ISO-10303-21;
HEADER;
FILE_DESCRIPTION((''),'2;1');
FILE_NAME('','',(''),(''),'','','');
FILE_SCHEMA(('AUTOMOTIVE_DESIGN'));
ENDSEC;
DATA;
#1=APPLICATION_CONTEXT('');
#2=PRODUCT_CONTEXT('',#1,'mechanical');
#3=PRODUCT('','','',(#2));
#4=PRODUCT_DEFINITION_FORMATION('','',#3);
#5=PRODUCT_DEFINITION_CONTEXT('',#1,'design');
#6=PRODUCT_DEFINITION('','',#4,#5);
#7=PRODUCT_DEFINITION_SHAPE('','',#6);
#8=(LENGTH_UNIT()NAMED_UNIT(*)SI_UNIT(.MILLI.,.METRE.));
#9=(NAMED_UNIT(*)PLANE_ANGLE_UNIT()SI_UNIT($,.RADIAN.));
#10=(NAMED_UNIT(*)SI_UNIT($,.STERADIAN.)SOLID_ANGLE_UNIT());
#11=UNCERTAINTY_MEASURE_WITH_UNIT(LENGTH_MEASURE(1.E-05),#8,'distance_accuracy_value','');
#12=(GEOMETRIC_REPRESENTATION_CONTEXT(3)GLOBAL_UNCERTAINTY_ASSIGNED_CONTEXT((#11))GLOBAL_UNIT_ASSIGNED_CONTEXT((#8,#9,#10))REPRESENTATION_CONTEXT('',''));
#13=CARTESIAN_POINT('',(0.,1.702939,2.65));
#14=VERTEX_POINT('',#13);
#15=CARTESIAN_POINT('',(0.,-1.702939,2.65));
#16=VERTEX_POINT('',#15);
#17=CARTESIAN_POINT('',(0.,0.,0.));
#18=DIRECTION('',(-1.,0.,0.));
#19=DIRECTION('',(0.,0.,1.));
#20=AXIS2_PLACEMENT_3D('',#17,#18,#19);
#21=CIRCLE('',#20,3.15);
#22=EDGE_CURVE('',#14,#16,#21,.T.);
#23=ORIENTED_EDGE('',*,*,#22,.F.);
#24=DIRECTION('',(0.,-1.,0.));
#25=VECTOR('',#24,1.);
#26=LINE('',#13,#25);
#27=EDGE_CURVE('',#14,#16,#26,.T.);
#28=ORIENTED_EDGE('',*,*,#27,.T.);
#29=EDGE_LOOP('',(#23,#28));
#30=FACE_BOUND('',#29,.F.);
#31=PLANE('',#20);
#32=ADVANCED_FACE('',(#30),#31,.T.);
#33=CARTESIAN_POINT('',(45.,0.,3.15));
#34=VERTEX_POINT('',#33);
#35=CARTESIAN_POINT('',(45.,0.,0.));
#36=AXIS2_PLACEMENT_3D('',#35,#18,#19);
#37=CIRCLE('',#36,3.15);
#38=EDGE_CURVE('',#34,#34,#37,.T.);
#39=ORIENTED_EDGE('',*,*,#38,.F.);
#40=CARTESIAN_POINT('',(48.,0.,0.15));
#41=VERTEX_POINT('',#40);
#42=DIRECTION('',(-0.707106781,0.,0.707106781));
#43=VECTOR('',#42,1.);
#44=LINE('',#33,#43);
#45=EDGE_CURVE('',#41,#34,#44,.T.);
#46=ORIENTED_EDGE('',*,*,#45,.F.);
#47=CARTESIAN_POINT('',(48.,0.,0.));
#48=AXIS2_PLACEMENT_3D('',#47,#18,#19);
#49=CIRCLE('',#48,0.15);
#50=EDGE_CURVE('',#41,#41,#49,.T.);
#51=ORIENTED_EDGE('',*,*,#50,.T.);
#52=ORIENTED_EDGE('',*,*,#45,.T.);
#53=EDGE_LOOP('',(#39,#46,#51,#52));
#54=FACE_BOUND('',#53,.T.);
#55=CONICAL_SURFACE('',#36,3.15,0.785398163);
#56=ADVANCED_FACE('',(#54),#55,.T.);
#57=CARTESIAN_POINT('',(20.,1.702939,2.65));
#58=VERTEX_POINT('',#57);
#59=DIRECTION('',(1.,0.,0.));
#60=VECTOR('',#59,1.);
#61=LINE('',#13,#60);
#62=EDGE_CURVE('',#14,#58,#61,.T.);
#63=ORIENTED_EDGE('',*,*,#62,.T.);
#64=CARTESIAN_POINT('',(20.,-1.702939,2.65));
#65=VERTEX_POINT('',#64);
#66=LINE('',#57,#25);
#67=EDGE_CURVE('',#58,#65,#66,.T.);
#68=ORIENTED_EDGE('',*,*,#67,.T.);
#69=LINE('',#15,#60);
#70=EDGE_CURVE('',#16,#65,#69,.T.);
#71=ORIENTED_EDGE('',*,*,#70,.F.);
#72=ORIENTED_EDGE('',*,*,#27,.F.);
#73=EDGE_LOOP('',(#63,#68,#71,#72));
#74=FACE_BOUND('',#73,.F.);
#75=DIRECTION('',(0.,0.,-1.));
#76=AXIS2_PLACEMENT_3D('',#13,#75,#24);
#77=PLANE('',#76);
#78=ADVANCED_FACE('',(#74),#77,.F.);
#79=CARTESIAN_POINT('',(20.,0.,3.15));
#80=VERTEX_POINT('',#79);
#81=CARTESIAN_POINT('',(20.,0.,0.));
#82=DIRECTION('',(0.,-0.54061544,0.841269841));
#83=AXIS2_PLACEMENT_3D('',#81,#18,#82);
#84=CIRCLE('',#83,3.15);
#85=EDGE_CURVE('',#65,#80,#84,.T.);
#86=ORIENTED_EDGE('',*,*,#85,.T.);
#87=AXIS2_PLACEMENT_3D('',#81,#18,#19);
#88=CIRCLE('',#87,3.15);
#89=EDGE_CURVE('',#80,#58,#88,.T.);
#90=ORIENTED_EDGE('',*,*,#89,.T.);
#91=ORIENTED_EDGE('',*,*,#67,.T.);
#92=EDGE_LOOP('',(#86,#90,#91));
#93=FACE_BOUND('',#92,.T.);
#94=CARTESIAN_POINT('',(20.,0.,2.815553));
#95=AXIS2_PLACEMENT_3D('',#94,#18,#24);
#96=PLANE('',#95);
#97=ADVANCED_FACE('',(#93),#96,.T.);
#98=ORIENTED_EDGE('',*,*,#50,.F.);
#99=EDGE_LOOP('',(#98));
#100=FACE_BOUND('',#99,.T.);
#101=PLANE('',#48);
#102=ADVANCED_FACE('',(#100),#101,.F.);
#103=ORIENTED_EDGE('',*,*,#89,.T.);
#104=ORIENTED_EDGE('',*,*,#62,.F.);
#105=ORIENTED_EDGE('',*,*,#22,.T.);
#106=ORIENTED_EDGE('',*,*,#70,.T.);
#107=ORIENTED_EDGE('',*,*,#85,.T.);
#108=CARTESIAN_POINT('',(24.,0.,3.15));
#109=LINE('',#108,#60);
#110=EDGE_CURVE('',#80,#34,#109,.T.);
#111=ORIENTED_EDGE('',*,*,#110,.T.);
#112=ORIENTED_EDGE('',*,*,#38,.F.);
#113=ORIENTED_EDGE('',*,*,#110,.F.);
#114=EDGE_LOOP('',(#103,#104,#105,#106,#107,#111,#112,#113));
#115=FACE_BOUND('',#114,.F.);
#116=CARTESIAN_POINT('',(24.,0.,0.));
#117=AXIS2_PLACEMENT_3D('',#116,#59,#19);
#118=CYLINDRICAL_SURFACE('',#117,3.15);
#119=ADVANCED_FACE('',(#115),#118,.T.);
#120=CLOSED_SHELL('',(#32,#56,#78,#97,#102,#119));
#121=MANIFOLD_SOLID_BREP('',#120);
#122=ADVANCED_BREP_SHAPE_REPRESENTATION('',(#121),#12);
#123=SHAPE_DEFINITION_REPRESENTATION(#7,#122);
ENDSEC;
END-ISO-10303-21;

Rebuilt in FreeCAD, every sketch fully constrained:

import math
import FreeCAD as App
import Part
import Sketcher
from FreeCAD import Vector
Q = App.Units.Quantity


def edges_at(feature, points):
    """Names of the edges that pass closest to the given points."""
    edges = feature.Shape.Edges
    near = lambda p: min(range(len(edges)), key=lambda i: edges[i].distToShape(Part.Vertex(*p))[0])
    return sorted({f"Edge{near(p) + 1}" for p in points})


def add_polygon(sketch, points):
    """Adds a closed chain of lines whose ends are joined by coincident constraints."""
    first, n = sketch.GeometryCount, len(points)
    for a, b in zip(points, points[1:] + points[:1]):
        sketch.addGeometry(Part.LineSegment(App.Vector(*a, 0), App.Vector(*b, 0)), False)
    for i in range(n):
        sketch.addConstraint(Sketcher.Constraint("Coincident", first + i, 2, first + (i + 1) % n, 1))

doc = App.newDocument("Part")
body = doc.addObject("PartDesign::Body", "Body")

# Sketch on XZ plane
sketch1 = body.newObject("Sketcher::SketchObject", "Sketch")
sketch1.AttachmentSupport = (doc.getObject("XZ_Plane"), [""])
sketch1.MapMode = "FlatFace"
add_polygon(sketch1, [(0, 3.1), (0, 0), (48, 0), (48, 3.1)])  # lines 0-3
sketch1.addConstraint([
    Sketcher.Constraint("Vertical", 0),
    Sketcher.Constraint("Horizontal", 1),
    Sketcher.Constraint("Vertical", 2),
    Sketcher.Constraint("Horizontal", 3),
    Sketcher.Constraint("Coincident", 0, 2, -1, 1),
    Sketcher.Constraint("DistanceX", 1, 1, 1, 2, Q("48 mm")),
    Sketcher.Constraint("DistanceY", 0, 2, 0, 1, Q("3.15 mm")),
])
revolution = body.newObject("PartDesign::Revolution", "Revolution")
revolution.Profile = sketch1
revolution.ReferenceAxis = (sketch1, ["H_Axis"])
revolution.Angle = 360
doc.recompute()

chamfer = body.newObject("PartDesign::Chamfer", "Chamfer")
chamfer.Base = (revolution, edges_at(revolution, [(48, 0, -3.15)]))
chamfer.Size = 3

# Sketch on YZ plane
sketch2 = body.newObject("Sketcher::SketchObject", "Sketch001")
sketch2.AttachmentSupport = (doc.getObject("YZ_Plane"), [""])
sketch2.MapMode = "FlatFace"
sketch2.addGeometry([
    Part.LineSegment(Vector(1.7, 2.6, 0), Vector(-1.7, 2.6, 0)),
    Part.ArcOfCircle(Part.Circle(Vector(0, 0, 0), Vector(0, 0, 1), 3.2), math.radians(90), math.radians(123)),
    Part.ArcOfCircle(Part.Circle(Vector(0, 0, 0), Vector(0, 0, 1), 3.2), math.radians(57), math.radians(90)),
], False)
sketch2.addConstraint([
    Sketcher.Constraint("Coincident", 0, 2, 1, 2),
    Sketcher.Constraint("Tangent", 1, 1, 2, 2),
    Sketcher.Constraint("Coincident", 2, 1, 0, 1),
    Sketcher.Constraint("Horizontal", 0),
    Sketcher.Constraint("Coincident", 1, 3, -1, 1),
    Sketcher.Constraint("Equal", 1, 2),
    Sketcher.Constraint("PointOnObject", 1, 1, -2),
    Sketcher.Constraint("Radius", 1, Q("3.15 mm")),
    Sketcher.Constraint("DistanceY", 0, 2, 1, 1, Q("0.5 mm")),
])
pocket1 = body.newObject("PartDesign::Pocket", "Pocket")
pocket1.Profile = sketch2
pocket1.Length = 20
pocket1.Reversed = True

doc.recompute()
